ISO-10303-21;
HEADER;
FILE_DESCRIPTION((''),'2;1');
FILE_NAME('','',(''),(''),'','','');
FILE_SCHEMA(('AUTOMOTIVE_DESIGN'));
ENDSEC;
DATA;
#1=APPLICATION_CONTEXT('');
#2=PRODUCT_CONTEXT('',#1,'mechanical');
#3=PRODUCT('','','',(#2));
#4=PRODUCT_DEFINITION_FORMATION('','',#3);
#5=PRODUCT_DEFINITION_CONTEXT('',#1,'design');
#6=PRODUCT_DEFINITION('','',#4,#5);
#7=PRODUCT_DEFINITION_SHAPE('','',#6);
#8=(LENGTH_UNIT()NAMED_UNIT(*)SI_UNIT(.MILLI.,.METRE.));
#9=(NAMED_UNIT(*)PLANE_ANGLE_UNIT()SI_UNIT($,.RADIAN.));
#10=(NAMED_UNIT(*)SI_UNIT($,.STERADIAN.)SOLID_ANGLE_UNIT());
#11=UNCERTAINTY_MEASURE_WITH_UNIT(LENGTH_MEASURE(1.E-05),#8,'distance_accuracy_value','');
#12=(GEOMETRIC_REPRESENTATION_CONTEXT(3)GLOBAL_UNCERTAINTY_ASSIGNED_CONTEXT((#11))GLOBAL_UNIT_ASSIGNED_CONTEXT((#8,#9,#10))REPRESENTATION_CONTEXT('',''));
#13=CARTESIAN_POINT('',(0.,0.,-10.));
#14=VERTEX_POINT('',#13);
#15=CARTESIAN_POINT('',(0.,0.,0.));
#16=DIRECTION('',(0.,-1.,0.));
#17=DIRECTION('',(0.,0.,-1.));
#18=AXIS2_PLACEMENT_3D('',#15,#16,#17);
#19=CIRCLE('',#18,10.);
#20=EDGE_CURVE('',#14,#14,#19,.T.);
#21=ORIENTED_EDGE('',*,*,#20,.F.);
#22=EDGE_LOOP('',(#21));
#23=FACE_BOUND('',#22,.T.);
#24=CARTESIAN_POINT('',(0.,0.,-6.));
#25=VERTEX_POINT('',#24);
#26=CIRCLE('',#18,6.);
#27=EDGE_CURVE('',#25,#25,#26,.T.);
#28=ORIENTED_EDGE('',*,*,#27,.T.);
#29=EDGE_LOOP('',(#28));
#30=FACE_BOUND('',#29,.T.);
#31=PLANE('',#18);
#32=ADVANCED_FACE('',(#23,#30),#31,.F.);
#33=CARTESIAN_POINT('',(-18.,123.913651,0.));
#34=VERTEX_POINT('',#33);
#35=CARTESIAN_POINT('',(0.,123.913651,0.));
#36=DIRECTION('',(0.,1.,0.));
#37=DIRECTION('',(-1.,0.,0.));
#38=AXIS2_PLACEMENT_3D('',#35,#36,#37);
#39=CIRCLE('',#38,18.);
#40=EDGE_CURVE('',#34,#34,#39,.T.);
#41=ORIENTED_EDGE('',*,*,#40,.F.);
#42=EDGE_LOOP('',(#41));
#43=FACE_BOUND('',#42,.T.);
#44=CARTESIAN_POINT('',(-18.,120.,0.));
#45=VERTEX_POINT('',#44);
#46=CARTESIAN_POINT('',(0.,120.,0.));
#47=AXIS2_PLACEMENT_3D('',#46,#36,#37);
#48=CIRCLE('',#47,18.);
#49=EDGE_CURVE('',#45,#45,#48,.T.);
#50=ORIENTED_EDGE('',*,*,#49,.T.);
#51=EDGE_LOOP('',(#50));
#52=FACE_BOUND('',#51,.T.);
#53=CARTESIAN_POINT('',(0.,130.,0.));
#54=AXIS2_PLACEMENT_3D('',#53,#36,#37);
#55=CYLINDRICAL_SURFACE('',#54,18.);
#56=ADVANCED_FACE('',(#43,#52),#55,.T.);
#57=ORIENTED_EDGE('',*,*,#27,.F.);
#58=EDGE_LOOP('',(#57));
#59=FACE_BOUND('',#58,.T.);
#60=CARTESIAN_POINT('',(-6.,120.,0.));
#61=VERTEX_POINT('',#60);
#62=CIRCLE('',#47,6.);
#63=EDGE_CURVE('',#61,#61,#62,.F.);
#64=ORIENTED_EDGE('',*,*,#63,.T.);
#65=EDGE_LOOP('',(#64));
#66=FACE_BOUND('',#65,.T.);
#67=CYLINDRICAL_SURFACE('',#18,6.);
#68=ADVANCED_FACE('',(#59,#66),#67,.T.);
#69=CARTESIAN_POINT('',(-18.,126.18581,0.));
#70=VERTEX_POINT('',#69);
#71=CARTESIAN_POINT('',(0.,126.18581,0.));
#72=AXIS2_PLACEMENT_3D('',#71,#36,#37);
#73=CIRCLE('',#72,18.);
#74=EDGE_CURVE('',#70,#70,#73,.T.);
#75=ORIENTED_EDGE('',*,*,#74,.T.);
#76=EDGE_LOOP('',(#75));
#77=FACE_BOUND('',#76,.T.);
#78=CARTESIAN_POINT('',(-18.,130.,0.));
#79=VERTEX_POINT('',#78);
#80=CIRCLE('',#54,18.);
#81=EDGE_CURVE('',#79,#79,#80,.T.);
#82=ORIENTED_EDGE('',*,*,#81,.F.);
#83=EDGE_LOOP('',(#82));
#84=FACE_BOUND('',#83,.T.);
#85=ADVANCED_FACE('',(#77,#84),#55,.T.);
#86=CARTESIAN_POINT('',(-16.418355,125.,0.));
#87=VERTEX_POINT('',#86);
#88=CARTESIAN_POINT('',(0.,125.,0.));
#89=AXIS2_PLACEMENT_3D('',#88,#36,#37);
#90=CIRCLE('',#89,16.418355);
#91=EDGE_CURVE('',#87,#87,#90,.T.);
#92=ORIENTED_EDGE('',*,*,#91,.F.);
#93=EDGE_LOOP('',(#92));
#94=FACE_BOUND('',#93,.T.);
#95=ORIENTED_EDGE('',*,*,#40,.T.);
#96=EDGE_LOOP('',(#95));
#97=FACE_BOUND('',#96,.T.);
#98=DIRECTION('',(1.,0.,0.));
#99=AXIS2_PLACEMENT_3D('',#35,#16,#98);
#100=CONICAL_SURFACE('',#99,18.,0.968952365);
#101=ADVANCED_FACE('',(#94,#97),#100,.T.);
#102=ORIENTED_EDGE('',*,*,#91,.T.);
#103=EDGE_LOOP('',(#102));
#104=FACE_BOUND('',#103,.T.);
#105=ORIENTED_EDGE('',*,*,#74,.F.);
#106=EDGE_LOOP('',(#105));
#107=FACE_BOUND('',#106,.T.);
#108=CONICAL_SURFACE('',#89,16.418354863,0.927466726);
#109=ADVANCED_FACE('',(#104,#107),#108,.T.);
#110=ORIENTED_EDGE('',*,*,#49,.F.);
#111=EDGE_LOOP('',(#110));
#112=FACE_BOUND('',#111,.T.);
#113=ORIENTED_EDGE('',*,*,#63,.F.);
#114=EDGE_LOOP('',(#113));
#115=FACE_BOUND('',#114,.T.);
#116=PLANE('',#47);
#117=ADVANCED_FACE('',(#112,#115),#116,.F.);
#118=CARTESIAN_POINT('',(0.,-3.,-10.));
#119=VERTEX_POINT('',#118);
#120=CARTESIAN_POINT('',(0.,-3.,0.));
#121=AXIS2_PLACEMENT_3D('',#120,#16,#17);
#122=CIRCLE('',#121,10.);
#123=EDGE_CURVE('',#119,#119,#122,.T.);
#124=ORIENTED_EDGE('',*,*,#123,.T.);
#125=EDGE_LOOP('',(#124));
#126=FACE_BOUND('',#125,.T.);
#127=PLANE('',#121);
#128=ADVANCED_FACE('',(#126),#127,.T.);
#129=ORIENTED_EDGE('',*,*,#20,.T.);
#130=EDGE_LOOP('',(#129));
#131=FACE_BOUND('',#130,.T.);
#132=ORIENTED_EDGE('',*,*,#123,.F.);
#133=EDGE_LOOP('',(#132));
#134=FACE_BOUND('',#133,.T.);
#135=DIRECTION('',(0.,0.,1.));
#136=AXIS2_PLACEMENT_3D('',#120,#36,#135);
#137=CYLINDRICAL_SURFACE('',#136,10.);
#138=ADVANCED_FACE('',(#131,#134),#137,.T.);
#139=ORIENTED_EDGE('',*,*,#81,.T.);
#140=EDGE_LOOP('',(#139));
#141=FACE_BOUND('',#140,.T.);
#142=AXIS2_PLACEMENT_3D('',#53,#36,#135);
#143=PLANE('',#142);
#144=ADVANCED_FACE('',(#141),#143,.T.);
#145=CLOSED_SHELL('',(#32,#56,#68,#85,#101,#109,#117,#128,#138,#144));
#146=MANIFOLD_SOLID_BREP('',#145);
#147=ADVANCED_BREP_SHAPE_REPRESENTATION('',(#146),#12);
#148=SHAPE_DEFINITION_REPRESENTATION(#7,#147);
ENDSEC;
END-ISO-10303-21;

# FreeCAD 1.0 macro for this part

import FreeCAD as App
import Part
import Sketcher
Q = App.Units.Quantity


def add_polygon(sketch, points):
    """Adds a closed chain of lines whose ends are joined by coincident constraints."""
    first, n = sketch.GeometryCount, len(points)
    for a, b in zip(points, points[1:] + points[:1]):
        sketch.addGeometry(Part.LineSegment(App.Vector(*a, 0), App.Vector(*b, 0)), False)
    for i in range(n):
        sketch.addConstraint(Sketcher.Constraint("Coincident", first + i, 2, first + (i + 1) % n, 1))

doc = App.newDocument("Part")
body = doc.addObject("PartDesign::Body", "Body")

sketch1 = body.newObject("Sketcher::SketchObject", "Sketch")
sketch1.AttachmentSupport = (doc.getObject("XY_Plane"), [""])
sketch1.MapMode = "FlatFace"
add_polygon(sketch1, [(0, 130), (0, 0), (6, 0), (6, 130)])
sketch1.addConstraint([
    Sketcher.Constraint("Vertical", 0),
    Sketcher.Constraint("Horizontal", 1),
    Sketcher.Constraint("Vertical", 2),
    Sketcher.Constraint("Horizontal", 3),
    Sketcher.Constraint("Coincident", 0, 2, -1, 1),
    Sketcher.Constraint("DistanceX", 1, 1, 1, 2, Q("6 mm")),
    Sketcher.Constraint("DistanceY", 0, 2, 0, 1, Q("130 mm")),
])
revolution = body.newObject("PartDesign::Revolution", "Revolution")
revolution.Profile = sketch1
revolution.ReferenceAxis = (sketch1, ["V_Axis"])
revolution.Angle = 360

sketch2 = body.newObject("Sketcher::SketchObject", "Sketch001")
sketch2.AttachmentSupport = (doc.getObject("XY_Plane"), [""])
sketch2.MapMode = "FlatFace"
add_polygon(sketch2, [(18, 130), (0, 130), (0, 120), (18, 120), (18, 123.9), (16.4, 125), (18, 126.2)])
sketch2.addConstraint([
    Sketcher.Constraint("Horizontal", 0),
    Sketcher.Constraint("Vertical", 1),
    Sketcher.Constraint("Horizontal", 2),
    Sketcher.Constraint("Vertical", 3),
    Sketcher.Constraint("Vertical", 6),
    Sketcher.Constraint("PointOnObject", 0, 2, -2),
    Sketcher.Constraint("Vertical", 3, 2, 5, 2),
    Sketcher.Constraint("DistanceX", 0, 2, 0, 1, Q("18 mm")),
    Sketcher.Constraint("DistanceY", 1, 2, 1, 1, Q("10 mm")),
    Sketcher.Constraint("DistanceY", -1, 1, 0, 2, Q("130 mm")),
    Sketcher.Constraint("DistanceY", -1, 1, 4, 2, Q("125 mm")),
    Sketcher.Constraint("DistanceY", 3, 1, 3, 2, Q("3.913651 mm")),
    Sketcher.Constraint("DistanceY", 6, 1, 6, 2, Q("3.81419 mm")),
    Sketcher.Constraint("Distance", 4, Q("1.91879 mm")),
])
revolution2 = body.newObject("PartDesign::Revolution", "Revolution001")
revolution2.Profile = sketch2
revolution2.ReferenceAxis = (sketch2, ["V_Axis"])
revolution2.Angle = 360

sketch3 = body.newObject("Sketcher::SketchObject", "Sketch002")
sketch3.AttachmentSupport = (doc.getObject("XZ_Plane"), [""])
sketch3.MapMode = "FlatFace"
sketch3.addGeometry(Part.Circle(App.Vector(0, 0, 0), App.Vector(0, 0, 1), 10), False)
sketch3.addConstraint([
    Sketcher.Constraint("Coincident", 0, 3, -1, 1),
    Sketcher.Constraint("Diameter", 0, Q("20 mm")),
])
pad1 = body.newObject("PartDesign::Pad", "Pad")
pad1.Profile = sketch3
pad1.Length = 3

doc.recompute()
